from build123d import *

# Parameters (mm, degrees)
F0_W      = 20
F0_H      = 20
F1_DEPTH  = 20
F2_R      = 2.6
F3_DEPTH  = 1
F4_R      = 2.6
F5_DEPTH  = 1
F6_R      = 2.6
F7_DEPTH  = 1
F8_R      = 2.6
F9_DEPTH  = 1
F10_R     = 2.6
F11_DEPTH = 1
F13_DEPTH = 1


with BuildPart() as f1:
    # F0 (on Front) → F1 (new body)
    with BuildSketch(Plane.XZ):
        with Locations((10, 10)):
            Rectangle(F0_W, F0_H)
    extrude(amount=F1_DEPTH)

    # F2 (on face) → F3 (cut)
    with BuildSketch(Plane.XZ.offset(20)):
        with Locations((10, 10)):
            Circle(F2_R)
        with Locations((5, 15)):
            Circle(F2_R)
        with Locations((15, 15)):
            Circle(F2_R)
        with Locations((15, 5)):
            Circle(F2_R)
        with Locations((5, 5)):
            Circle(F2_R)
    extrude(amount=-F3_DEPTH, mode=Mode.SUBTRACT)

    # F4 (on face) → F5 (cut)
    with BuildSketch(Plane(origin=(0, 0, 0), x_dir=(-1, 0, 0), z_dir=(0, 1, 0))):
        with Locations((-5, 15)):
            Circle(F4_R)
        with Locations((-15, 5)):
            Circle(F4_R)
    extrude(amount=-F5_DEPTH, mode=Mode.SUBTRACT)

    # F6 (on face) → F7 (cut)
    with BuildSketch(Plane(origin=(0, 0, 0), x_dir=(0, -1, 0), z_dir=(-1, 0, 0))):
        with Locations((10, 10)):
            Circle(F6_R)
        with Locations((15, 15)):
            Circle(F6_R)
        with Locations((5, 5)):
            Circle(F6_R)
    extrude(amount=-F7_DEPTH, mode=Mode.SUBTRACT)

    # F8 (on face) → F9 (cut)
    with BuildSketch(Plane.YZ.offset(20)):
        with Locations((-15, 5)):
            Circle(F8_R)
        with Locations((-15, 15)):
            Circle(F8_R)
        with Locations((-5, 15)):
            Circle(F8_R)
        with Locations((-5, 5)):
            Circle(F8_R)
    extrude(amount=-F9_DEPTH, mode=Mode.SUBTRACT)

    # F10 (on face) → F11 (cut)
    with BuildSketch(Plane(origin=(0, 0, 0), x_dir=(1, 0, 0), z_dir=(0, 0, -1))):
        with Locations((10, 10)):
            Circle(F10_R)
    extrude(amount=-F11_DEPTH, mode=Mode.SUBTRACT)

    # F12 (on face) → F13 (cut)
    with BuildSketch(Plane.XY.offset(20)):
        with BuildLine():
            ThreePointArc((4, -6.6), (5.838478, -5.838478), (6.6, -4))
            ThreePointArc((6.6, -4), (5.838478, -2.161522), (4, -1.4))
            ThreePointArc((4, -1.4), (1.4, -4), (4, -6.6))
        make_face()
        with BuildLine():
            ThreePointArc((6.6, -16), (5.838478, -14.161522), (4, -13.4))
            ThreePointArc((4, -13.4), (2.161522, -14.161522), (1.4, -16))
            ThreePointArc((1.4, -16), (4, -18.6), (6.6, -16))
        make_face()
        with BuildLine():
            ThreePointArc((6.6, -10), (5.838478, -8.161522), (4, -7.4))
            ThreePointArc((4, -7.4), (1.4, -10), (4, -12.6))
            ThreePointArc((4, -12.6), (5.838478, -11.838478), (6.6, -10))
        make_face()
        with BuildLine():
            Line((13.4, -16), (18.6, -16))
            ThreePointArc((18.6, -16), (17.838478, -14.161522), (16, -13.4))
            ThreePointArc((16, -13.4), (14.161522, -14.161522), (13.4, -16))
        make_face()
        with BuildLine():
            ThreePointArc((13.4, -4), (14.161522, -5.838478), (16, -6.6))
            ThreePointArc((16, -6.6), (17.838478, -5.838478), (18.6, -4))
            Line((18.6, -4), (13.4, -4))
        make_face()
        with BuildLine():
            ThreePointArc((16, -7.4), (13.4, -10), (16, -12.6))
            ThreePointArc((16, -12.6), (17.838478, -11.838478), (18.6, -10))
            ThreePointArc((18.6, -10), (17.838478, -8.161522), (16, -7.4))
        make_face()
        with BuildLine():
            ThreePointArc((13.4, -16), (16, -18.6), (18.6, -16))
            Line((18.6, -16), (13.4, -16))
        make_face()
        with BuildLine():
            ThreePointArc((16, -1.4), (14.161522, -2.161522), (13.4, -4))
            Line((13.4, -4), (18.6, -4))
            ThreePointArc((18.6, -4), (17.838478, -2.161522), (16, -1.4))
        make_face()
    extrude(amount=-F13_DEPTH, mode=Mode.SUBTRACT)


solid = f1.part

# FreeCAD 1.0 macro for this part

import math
import FreeCAD as App
import Part
import Sketcher
from FreeCAD import Vector
Q = App.Units.Quantity

doc = App.newDocument("Part")
body = doc.addObject("PartDesign::Body", "Body")

# Sketch on XZ plane
sketch1 = body.newObject("Sketcher::SketchObject", "Sketch")
sketch1.AttachmentSupport = (doc.getObject("XZ_Plane"), [""])
sketch1.MapMode = "FlatFace"
sketch1.addGeometry(Part.LineSegment(Vector(0, 20, 0), Vector(0, 0, 0)), False)
sketch1.addGeometry(Part.LineSegment(Vector(0, 0, 0), Vector(20, 0, 0)), False)
sketch1.addGeometry(Part.LineSegment(Vector(20, 0, 0), Vector(20, 20, 0)), False)
sketch1.addGeometry(Part.LineSegment(Vector(20, 20, 0), Vector(0, 20, 0)), False)
sketch1.addConstraint(Sketcher.Constraint("Coincident", 0, 2, 1, 1))
sketch1.addConstraint(Sketcher.Constraint("Coincident", 1, 2, 2, 1))
sketch1.addConstraint(Sketcher.Constraint("Coincident", 2, 2, 3, 1))
sketch1.addConstraint(Sketcher.Constraint("Coincident", 3, 2, 0, 1))
sketch1.addConstraint(Sketcher.Constraint("Vertical", 0))
sketch1.addConstraint(Sketcher.Constraint("Horizontal", 1))
sketch1.addConstraint(Sketcher.Constraint("Vertical", 2))
sketch1.addConstraint(Sketcher.Constraint("Horizontal", 3))
sketch1.addConstraint(Sketcher.Constraint("Coincident", 0, 2, -1, 1))
sketch1.addConstraint(Sketcher.Constraint("Equal", 3, 0))
sketch1.addConstraint(Sketcher.Constraint("DistanceX", 1, 1, 1, 2, Q("20 mm")))
pad1 = body.newObject("PartDesign::Pad", "Pad")
pad1.Profile = sketch1
pad1.Length = 20

# Sketch on XZ plane
sketch2 = body.newObject("Sketcher::SketchObject", "Sketch001")
sketch2.AttachmentSupport = (doc.getObject("XZ_Plane"), [""])
sketch2.MapMode = "FlatFace"
sketch2.AttachmentOffset = App.Placement(Vector(0, 0, 20), App.Rotation())
sketch2.addGeometry(Part.Circle(Vector(10, 10, 0), Vector(0, 0, 1), 2.6), False)
sketch2.addGeometry(Part.Circle(Vector(5, 15, 0), Vector(0, 0, 1), 2.6), False)
sketch2.addGeometry(Part.Circle(Vector(15, 15, 0), Vector(0, 0, 1), 2.6), False)
sketch2.addGeometry(Part.Circle(Vector(15, 5, 0), Vector(0, 0, 1), 2.6), False)
sketch2.addGeometry(Part.Circle(Vector(5, 5, 0), Vector(0, 0, 1), 2.6), False)
sketch2.addConstraint(Sketcher.Constraint("Equal", 0, 1))
sketch2.addConstraint(Sketcher.Constraint("Equal", 1, 2))
sketch2.addConstraint(Sketcher.Constraint("Equal", 2, 3))
sketch2.addConstraint(Sketcher.Constraint("Equal", 3, 4))
sketch2.addConstraint(Sketcher.Constraint("Horizontal", 1, 3, 2, 3))
sketch2.addConstraint(Sketcher.Constraint("Horizontal", 3, 3, 4, 3))
sketch2.addConstraint(Sketcher.Constraint("Vertical", 2, 3, 3, 3))
sketch2.addConstraint(Sketcher.Constraint("Vertical", 1, 3, 4, 3))
sketch2.addConstraint(Sketcher.Constraint("Diameter", 0, Q("5.2 mm")))
sketch2.addConstraint(Sketcher.Constraint("DistanceX", -1, 1, 0, 3, Q("10 mm")))
sketch2.addConstraint(Sketcher.Constraint("DistanceY", -1, 1, 0, 3, Q("10 mm")))
sketch2.addConstraint(Sketcher.Constraint("DistanceX", -1, 1, 1, 3, Q("5 mm")))
sketch2.addConstraint(Sketcher.Constraint("DistanceY", -1, 1, 1, 3, Q("15 mm")))
sketch2.addConstraint(Sketcher.Constraint("DistanceX", -1, 1, 2, 3, Q("15 mm")))
sketch2.addConstraint(Sketcher.Constraint("DistanceY", -1, 1, 3, 3, Q("5 mm")))
pocket1 = body.newObject("PartDesign::Pocket", "Pocket")
pocket1.Profile = sketch2
pocket1.Length = 1

# Sketch on XZ plane
sketch3 = body.newObject("Sketcher::SketchObject", "Sketch002")
sketch3.AttachmentSupport = (doc.getObject("XZ_Plane"), [""])
sketch3.MapMode = "FlatFace"
sketch3.addGeometry(Part.Circle(Vector(5, 15, 0), Vector(0, 0, 1), 2.6), False)
sketch3.addGeometry(Part.Circle(Vector(15, 5, 0), Vector(0, 0, 1), 2.6), False)
sketch3.addConstraint(Sketcher.Constraint("Equal", 0, 1))
sketch3.addConstraint(Sketcher.Constraint("Diameter", 0, Q("5.2 mm")))
sketch3.addConstraint(Sketcher.Constraint("DistanceX", -1, 1, 0, 3, Q("5 mm")))
sketch3.addConstraint(Sketcher.Constraint("DistanceY", -1, 1, 0, 3, Q("15 mm")))
sketch3.addConstraint(Sketcher.Constraint("DistanceX", -1, 1, 1, 3, Q("15 mm")))
sketch3.addConstraint(Sketcher.Constraint("DistanceY", -1, 1, 1, 3, Q("5 mm")))
pocket2 = body.newObject("PartDesign::Pocket", "Pocket001")
pocket2.Profile = sketch3
pocket2.Length = 1
pocket2.Reversed = True

# Sketch on YZ plane
sketch4 = body.newObject("Sketcher::SketchObject", "Sketch003")
sketch4.AttachmentSupport = (doc.getObject("YZ_Plane"), [""])
sketch4.MapMode = "FlatFace"
sketch4.addGeometry(Part.Circle(Vector(-10, 10, 0), Vector(0, 0, 1), 2.6), False)
sketch4.addGeometry(Part.Circle(Vector(-15, 15, 0), Vector(0, 0, 1), 2.6), False)
sketch4.addGeometry(Part.Circle(Vector(-5, 5, 0), Vector(0, 0, 1), 2.6), False)
sketch4.addConstraint(Sketcher.Constraint("Equal", 0, 1))
sketch4.addConstraint(Sketcher.Constraint("Equal", 1, 2))
sketch4.addConstraint(Sketcher.Constraint("Diameter", 0, Q("5.2 mm")))
sketch4.addConstraint(Sketcher.Constraint("DistanceX", 0, 3, -1, 1, Q("10 mm")))
sketch4.addConstraint(Sketcher.Constraint("DistanceY", -1, 1, 0, 3, Q("10 mm")))
sketch4.addConstraint(Sketcher.Constraint("DistanceX", 1, 3, -1, 1, Q("15 mm")))
sketch4.addConstraint(Sketcher.Constraint("DistanceY", -1, 1, 1, 3, Q("15 mm")))
sketch4.addConstraint(Sketcher.Constraint("DistanceX", 2, 3, -1, 1, Q("5 mm")))
sketch4.addConstraint(Sketcher.Constraint("DistanceY", -1, 1, 2, 3, Q("5 mm")))
pocket3 = body.newObject("PartDesign::Pocket", "Pocket002")
pocket3.Profile = sketch4
pocket3.Length = 1
pocket3.Reversed = True

# Sketch on YZ plane
sketch5 = body.newObject("Sketcher::SketchObject", "Sketch004")
sketch5.AttachmentSupport = (doc.getObject("YZ_Plane"), [""])
sketch5.MapMode = "FlatFace"
sketch5.AttachmentOffset = App.Placement(Vector(0, 0, 20), App.Rotation())
sketch5.addGeometry(Part.Circle(Vector(-15, 5, 0), Vector(0, 0, 1), 2.6), False)
sketch5.addGeometry(Part.Circle(Vector(-15, 15, 0), Vector(0, 0, 1), 2.6), False)
sketch5.addGeometry(Part.Circle(Vector(-5, 15, 0), Vector(0, 0, 1), 2.6), False)
sketch5.addGeometry(Part.Circle(Vector(-5, 5, 0), Vector(0, 0, 1), 2.6), False)
sketch5.addConstraint(Sketcher.Constraint("Equal", 0, 1))
sketch5.addConstraint(Sketcher.Constraint("Equal", 1, 2))
sketch5.addConstraint(Sketcher.Constraint("Equal", 2, 3))
sketch5.addConstraint(Sketcher.Constraint("Horizontal", 1, 3, 2, 3))
sketch5.addConstraint(Sketcher.Constraint("Horizontal", 0, 3, 3, 3))
sketch5.addConstraint(Sketcher.Constraint("Vertical", 0, 3, 1, 3))
sketch5.addConstraint(Sketcher.Constraint("Vertical", 2, 3, 3, 3))
sketch5.addConstraint(Sketcher.Constraint("Diameter", 0, Q("5.2 mm")))
sketch5.addConstraint(Sketcher.Constraint("DistanceX", 0, 3, -1, 1, Q("15 mm")))
sketch5.addConstraint(Sketcher.Constraint("DistanceY", -1, 1, 0, 3, Q("5 mm")))
sketch5.addConstraint(Sketcher.Constraint("DistanceY", -1, 1, 1, 3, Q("15 mm")))
sketch5.addConstraint(Sketcher.Constraint("DistanceX", 2, 3, -1, 1, Q("5 mm")))
pocket4 = body.newObject("PartDesign::Pocket", "Pocket003")
pocket4.Profile = sketch5
pocket4.Length = 1

# Sketch on XY plane
sketch6 = body.newObject("Sketcher::SketchObject", "Sketch005")
sketch6.AttachmentSupport = (doc.getObject("XY_Plane"), [""])
sketch6.MapMode = "FlatFace"
sketch6.addGeometry(Part.Circle(Vector(10, -10, 0), Vector(0, 0, 1), 2.6), False)
sketch6.addConstraint(Sketcher.Constraint("Diameter", 0, Q("5.2 mm")))
sketch6.addConstraint(Sketcher.Constraint("DistanceX", -1, 1, 0, 3, Q("10 mm")))
sketch6.addConstraint(Sketcher.Constraint("DistanceY", 0, 3, -1, 1, Q("10 mm")))
pocket5 = body.newObject("PartDesign::Pocket", "Pocket004")
pocket5.Profile = sketch6
pocket5.Length = 1
pocket5.Reversed = True

# Sketch on XY plane
sketch7 = body.newObject("Sketcher::SketchObject", "Sketch006")
sketch7.AttachmentSupport = (doc.getObject("XY_Plane"), [""])
sketch7.MapMode = "FlatFace"
sketch7.AttachmentOffset = App.Placement(Vector(0, 0, 20), App.Rotation())
sketch7.addGeometry(Part.ArcOfCircle(Part.Circle(Vector(4.000001, -4.000001, 0), Vector(0, 0, 1), 2.599999), math.radians(-90.000028), math.radians(0.000028)), False)
sketch7.addGeometry(Part.ArcOfCircle(Part.Circle(Vector(4.000001, -3.999999, 0), Vector(0, 0, 1), 2.599999), math.radians(-0.000028), math.radians(90.000028)), False)
sketch7.addGeometry(Part.ArcOfCircle(Part.Circle(Vector(4, -4, 0), Vector(0, 0, 1), 2.6), math.radians(90), math.radians(270)), False)
sketch7.addGeometry(Part.ArcOfCircle(Part.Circle(Vector(4.000001, -15.999999, 0), Vector(0, 0, 1), 2.599999), math.radians(-0.000028), math.radians(90.000028)), False)
sketch7.addGeometry(Part.ArcOfCircle(Part.Circle(Vector(3.999999, -15.999999, 0), Vector(0, 0, 1), 2.599999), math.radians(89.999972), math.radians(180.000028)), False)
sketch7.addGeometry(Part.ArcOfCircle(Part.Circle(Vector(4, -16, 0), Vector(0, 0, 1), 2.6), math.radians(180), math.radians(360)), False)
sketch7.addGeometry(Part.ArcOfCircle(Part.Circle(Vector(4.000001, -9.999999, 0), Vector(0, 0, 1), 2.599999), math.radians(-0.000028), math.radians(90.000028)), False)
sketch7.addGeometry(Part.ArcOfCircle(Part.Circle(Vector(4, -10, 0), Vector(0, 0, 1), 2.6), math.radians(90), math.radians(270)), False)
sketch7.addGeometry(Part.ArcOfCircle(Part.Circle(Vector(4.000001, -10.000001, 0), Vector(0, 0, 1), 2.599999), math.radians(-90.000028), math.radians(0.000028)), False)
sketch7.addGeometry(Part.ArcOfCircle(Part.Circle(Vector(16.000001, -15.999999, 0), Vector(0, 0, 1), 2.599999), math.radians(-0.000028), math.radians(90.000028)), False)
sketch7.addGeometry(Part.ArcOfCircle(Part.Circle(Vector(15.999999, -15.999999, 0), Vector(0, 0, 1), 2.599999), math.radians(89.999972), math.radians(180.000028)), False)
sketch7.addGeometry(Part.ArcOfCircle(Part.Circle(Vector(16, -16, 0), Vector(0, 0, 1), 2.6), math.radians(180), math.radians(360)), False)
sketch7.addGeometry(Part.ArcOfCircle(Part.Circle(Vector(15.999999, -4.000001, 0), Vector(0, 0, 1), 2.599999), math.radians(179.999972), math.radians(270.000028)), False)
sketch7.addGeometry(Part.ArcOfCircle(Part.Circle(Vector(16.000001, -4.000001, 0), Vector(0, 0, 1), 2.599999), math.radians(-90.000028), math.radians(0.000028)), False)
sketch7.addGeometry(Part.ArcOfCircle(Part.Circle(Vector(16.000001, -3.999999, 0), Vector(0, 0, 1), 2.599999), math.radians(-0.000028), math.radians(90.000028)), False)
sketch7.addGeometry(Part.ArcOfCircle(Part.Circle(Vector(15.999999, -3.999999, 0), Vector(0, 0, 1), 2.599999), math.radians(89.999972), math.radians(180.000028)), False)
sketch7.addGeometry(Part.ArcOfCircle(Part.Circle(Vector(16, -10, 0), Vector(0, 0, 1), 2.6), math.radians(90), math.radians(270)), False)
sketch7.addGeometry(Part.ArcOfCircle(Part.Circle(Vector(16.000001, -10.000001, 0), Vector(0, 0, 1), 2.599999), math.radians(-90.000028), math.radians(0.000028)), False)
sketch7.addGeometry(Part.ArcOfCircle(Part.Circle(Vector(16.000001, -9.999999, 0), Vector(0, 0, 1), 2.599999), math.radians(-0.000028), math.radians(90.000028)), False)
sketch7.addConstraint(Sketcher.Constraint("Tangent", 0, 2, 1, 1))
sketch7.addConstraint(Sketcher.Constraint("Tangent", 1, 2, 2, 1))
sketch7.addConstraint(Sketcher.Constraint("Tangent", 2, 2, 0, 1))
sketch7.addConstraint(Sketcher.Constraint("Tangent", 3, 2, 4, 1))
sketch7.addConstraint(Sketcher.Constraint("Tangent", 4, 2, 5, 1))
sketch7.addConstraint(Sketcher.Constraint("Tangent", 5, 2, 3, 1))
sketch7.addConstraint(Sketcher.Constraint("Tangent", 6, 2, 7, 1))
sketch7.addConstraint(Sketcher.Constraint("Tangent", 7, 2, 8, 1))
sketch7.addConstraint(Sketcher.Constraint("Tangent", 8, 2, 6, 1))
sketch7.addConstraint(Sketcher.Constraint("Tangent", 9, 2, 10, 1))
sketch7.addConstraint(Sketcher.Constraint("Tangent", 10, 2, 11, 1))
sketch7.addConstraint(Sketcher.Constraint("Tangent", 11, 2, 9, 1))
sketch7.addConstraint(Sketcher.Constraint("Tangent", 12, 2, 13, 1))
sketch7.addConstraint(Sketcher.Constraint("Tangent", 13, 2, 14, 1))
sketch7.addConstraint(Sketcher.Constraint("Tangent", 14, 2, 15, 1))
sketch7.addConstraint(Sketcher.Constraint("Tangent", 15, 2, 12, 1))
sketch7.addConstraint(Sketcher.Constraint("Tangent", 16, 2, 17, 1))
sketch7.addConstraint(Sketcher.Constraint("Tangent", 17, 2, 18, 1))
sketch7.addConstraint(Sketcher.Constraint("Tangent", 18, 2, 16, 1))
sketch7.addConstraint(Sketcher.Constraint("Equal", 2, 3))
sketch7.addConstraint(Sketcher.Constraint("Equal", 5, 6))
sketch7.addConstraint(Sketcher.Constraint("Equal", 8, 9))
sketch7.addConstraint(Sketcher.Constraint("Equal", 11, 12))
sketch7.addConstraint(Sketcher.Constraint("Equal", 12, 13))
sketch7.addConstraint(Sketcher.Constraint("Equal", 15, 16))
sketch7.addConstraint(Sketcher.Constraint("Horizontal", 5, 3, 9, 3))
sketch7.addConstraint(Sketcher.Constraint("Horizontal", 2, 3, 12, 3))
sketch7.addConstraint(Sketcher.Constraint("Horizontal", 8, 3, 16, 3))
sketch7.addConstraint(Sketcher.Constraint("Horizontal", 15, 3, 0, 2))
sketch7.addConstraint(Sketcher.Constraint("Horizontal", 11, 3, 4, 2))
sketch7.addConstraint(Sketcher.Constraint("Horizontal", 4, 2, 5, 2))
sketch7.addConstraint(Sketcher.Constraint("Horizontal", 18, 3, 8, 2))
sketch7.addConstraint(Sketcher.Constraint("Horizontal", 5, 2, 10, 2))
sketch7.addConstraint(Sketcher.Constraint("Horizontal", 10, 2, 11, 2))
sketch7.addConstraint(Sketcher.Constraint("Horizontal", 0, 2, 13, 2))
sketch7.addConstraint(Sketcher.Constraint("Horizontal", 13, 2, 15, 2))
sketch7.addConstraint(Sketcher.Constraint("Horizontal", 8, 2, 17, 2))
sketch7.addConstraint(Sketcher.Constraint("Vertical", 2, 3, 3, 3))
sketch7.addConstraint(Sketcher.Constraint("Vertical", 5, 3, 6, 3))
sketch7.addConstraint(Sketcher.Constraint("Vertical", 11, 3, 12, 3))
sketch7.addConstraint(Sketcher.Constraint("Vertical", 15, 3, 16, 3))
sketch7.addConstraint(Sketcher.Constraint("Vertical", 8, 3, 1, 2))
sketch7.addConstraint(Sketcher.Constraint("Vertical", 1, 2, 2, 2))
sketch7.addConstraint(Sketcher.Constraint("Vertical", 2, 2, 3, 2))
sketch7.addConstraint(Sketcher.Constraint("Vertical", 3, 2, 6, 2))
sketch7.addConstraint(Sketcher.Constraint("Vertical", 6, 2, 7, 2))
sketch7.addConstraint(Sketcher.Constraint("Vertical", 18, 3, 9, 2))
sketch7.addConstraint(Sketcher.Constraint("Vertical", 9, 2, 12, 2))
sketch7.addConstraint(Sketcher.Constraint("Vertical", 12, 2, 14, 2))
sketch7.addConstraint(Sketcher.Constraint("Vertical", 14, 2, 16, 2))
sketch7.addConstraint(Sketcher.Constraint("Vertical", 16, 2, 18, 2))
sketch7.addConstraint(Sketcher.Constraint("Radius", 0, Q("2.599999 mm")))
sketch7.addConstraint(Sketcher.Constraint("DistanceX", -1, 1, 0, 3, Q("4.000001 mm")))
sketch7.addConstraint(Sketcher.Constraint("DistanceY", 0, 3, -1, 1, Q("4.000001 mm")))
sketch7.addConstraint(Sketcher.Constraint("DistanceY", 3, 3, -1, 1, Q("15.999999 mm")))
sketch7.addConstraint(Sketcher.Constraint("DistanceY", 6, 3, -1, 1, Q("9.999999 mm")))
sketch7.addConstraint(Sketcher.Constraint("DistanceX", -1, 1, 9, 3, Q("16.000001 mm")))
pocket6 = body.newObject("PartDesign::Pocket", "Pocket005")
pocket6.Profile = sketch7
pocket6.Length = 1

doc.recompute()
